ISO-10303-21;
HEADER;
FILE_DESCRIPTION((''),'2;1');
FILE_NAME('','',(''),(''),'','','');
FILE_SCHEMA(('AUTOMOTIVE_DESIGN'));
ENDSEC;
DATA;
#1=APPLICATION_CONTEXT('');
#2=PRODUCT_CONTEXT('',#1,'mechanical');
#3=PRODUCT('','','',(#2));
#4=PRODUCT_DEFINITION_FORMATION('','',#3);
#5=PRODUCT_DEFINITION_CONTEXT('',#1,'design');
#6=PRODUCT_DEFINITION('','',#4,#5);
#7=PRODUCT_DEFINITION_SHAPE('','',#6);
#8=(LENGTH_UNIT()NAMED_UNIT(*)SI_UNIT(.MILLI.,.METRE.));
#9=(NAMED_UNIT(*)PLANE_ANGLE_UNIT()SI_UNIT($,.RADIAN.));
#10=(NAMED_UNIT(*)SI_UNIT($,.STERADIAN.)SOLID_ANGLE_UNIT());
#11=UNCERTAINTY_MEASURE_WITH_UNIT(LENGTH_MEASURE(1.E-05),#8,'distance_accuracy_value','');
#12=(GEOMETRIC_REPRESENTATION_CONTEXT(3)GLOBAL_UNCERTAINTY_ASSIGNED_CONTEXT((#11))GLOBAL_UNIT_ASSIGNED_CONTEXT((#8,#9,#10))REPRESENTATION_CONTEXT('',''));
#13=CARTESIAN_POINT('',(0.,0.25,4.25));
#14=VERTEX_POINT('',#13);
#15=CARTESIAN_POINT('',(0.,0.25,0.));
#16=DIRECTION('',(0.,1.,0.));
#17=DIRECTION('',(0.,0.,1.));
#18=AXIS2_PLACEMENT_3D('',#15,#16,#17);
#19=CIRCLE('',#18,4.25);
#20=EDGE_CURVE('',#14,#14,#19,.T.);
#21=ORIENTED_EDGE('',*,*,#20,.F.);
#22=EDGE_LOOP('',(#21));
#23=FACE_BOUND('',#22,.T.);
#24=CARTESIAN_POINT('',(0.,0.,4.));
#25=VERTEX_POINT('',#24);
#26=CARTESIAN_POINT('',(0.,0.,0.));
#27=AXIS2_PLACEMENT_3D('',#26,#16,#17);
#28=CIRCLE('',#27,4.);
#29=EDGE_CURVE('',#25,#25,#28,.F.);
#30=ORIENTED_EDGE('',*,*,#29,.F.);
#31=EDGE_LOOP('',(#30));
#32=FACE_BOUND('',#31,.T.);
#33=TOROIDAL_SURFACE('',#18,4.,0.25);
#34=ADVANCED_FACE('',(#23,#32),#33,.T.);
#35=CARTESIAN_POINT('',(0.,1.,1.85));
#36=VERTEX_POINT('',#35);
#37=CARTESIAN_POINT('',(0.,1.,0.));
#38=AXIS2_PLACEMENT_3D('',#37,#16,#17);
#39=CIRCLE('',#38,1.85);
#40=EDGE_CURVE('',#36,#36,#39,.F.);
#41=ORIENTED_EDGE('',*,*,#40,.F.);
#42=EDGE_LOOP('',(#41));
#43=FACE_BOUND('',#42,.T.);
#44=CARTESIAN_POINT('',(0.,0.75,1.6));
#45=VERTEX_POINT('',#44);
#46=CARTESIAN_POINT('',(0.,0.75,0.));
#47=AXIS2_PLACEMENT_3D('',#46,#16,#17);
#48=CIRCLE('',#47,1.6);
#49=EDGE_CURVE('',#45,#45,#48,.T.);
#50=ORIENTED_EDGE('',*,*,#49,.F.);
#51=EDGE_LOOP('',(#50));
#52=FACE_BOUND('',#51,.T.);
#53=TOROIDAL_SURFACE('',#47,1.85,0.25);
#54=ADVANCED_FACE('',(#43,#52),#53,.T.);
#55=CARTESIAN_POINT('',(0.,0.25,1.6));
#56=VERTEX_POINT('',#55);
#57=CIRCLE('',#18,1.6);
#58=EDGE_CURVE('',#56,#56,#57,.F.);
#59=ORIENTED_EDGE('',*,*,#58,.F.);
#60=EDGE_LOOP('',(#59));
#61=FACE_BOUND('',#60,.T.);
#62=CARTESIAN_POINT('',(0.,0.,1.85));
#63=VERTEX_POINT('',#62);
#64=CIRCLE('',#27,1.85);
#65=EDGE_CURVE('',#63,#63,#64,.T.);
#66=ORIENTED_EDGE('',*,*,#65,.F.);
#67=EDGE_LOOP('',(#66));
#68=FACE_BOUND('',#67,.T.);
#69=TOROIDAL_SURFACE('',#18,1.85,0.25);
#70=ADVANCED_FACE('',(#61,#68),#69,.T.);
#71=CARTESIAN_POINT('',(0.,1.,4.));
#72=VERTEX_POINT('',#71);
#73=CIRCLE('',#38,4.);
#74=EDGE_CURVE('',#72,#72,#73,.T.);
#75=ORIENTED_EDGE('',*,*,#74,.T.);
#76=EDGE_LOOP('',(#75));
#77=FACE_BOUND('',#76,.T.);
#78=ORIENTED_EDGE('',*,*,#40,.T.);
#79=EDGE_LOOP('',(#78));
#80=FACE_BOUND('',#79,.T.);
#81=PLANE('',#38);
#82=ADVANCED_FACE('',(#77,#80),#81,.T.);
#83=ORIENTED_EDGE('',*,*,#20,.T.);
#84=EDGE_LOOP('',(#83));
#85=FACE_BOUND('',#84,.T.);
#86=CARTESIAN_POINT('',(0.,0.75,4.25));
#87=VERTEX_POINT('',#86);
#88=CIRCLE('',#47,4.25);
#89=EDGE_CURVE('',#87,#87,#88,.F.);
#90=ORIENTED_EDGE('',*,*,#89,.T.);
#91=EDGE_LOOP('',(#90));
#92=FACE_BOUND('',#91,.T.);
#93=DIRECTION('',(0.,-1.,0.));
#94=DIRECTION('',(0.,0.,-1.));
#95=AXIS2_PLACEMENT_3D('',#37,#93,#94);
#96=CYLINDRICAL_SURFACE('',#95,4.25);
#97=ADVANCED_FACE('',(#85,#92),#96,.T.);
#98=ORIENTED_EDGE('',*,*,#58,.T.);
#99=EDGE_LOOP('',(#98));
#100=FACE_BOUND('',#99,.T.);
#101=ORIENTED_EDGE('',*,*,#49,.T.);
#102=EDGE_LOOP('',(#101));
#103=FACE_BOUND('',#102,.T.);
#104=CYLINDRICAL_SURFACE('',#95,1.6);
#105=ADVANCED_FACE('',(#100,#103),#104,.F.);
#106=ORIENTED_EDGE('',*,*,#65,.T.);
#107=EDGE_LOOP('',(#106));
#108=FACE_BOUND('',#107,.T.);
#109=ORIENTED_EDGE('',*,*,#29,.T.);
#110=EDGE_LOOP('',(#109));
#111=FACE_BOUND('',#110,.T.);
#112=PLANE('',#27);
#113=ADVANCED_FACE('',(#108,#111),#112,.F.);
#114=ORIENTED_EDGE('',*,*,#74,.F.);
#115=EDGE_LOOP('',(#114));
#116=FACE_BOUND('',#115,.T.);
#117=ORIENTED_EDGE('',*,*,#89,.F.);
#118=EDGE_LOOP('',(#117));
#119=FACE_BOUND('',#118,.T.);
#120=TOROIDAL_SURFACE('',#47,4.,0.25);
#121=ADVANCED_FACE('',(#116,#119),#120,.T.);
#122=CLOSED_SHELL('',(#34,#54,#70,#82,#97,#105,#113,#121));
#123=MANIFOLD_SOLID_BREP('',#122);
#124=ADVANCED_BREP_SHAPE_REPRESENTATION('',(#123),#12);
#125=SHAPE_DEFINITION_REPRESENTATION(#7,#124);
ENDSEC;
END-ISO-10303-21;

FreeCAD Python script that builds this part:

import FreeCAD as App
import Part
import Sketcher
Q = App.Units.Quantity


def edges_at(feature, points):
    """Names of the edges that pass closest to the given points."""
    edges = feature.Shape.Edges
    near = lambda p: min(range(len(edges)), key=lambda i: edges[i].distToShape(Part.Vertex(*p))[0])
    return sorted({f"Edge{near(p) + 1}" for p in points})

doc = App.newDocument("Part")
body = doc.addObject("PartDesign::Body", "Body")

# Sketch on XZ plane
sketch1 = body.newObject("Sketcher::SketchObject", "Sketch")
sketch1.AttachmentSupport = (doc.getObject("XZ_Plane"), [""])
sketch1.MapMode = "FlatFace"
sketch1.addGeometry([
    Part.Circle(App.Vector(0, 0, 0), App.Vector(0, 0, 1), 4.25),
    Part.Circle(App.Vector(0, 0, 0), App.Vector(0, 0, 1), 1.6),
], False)
sketch1.addConstraint([
    Sketcher.Constraint("Coincident", 0, 3, -1, 1),
    Sketcher.Constraint("Coincident", 1, 3, -1, 1),
    Sketcher.Constraint("Diameter", 0, Q("8.5 mm")),
    Sketcher.Constraint("Diameter", 1, Q("3.2 mm")),
])
pad1 = body.newObject("PartDesign::Pad", "Pad")
pad1.Profile = sketch1
pad1.Length = 1
pad1.Reversed = True
doc.recompute()

fillet = body.newObject("PartDesign::Fillet", "Fillet")
fillet.Base = (pad1, edges_at(pad1, [(0, 1, -4.25), (0, 0, -4.25)]))
fillet.Radius = 0.25
doc.recompute()

fillet2 = body.newObject("PartDesign::Fillet", "Fillet001")
fillet2.Base = (fillet, edges_at(fillet, [(0, 0, -1.6), (0, 1, -1.6)]))
fillet2.Radius = 0.25

doc.recompute()
